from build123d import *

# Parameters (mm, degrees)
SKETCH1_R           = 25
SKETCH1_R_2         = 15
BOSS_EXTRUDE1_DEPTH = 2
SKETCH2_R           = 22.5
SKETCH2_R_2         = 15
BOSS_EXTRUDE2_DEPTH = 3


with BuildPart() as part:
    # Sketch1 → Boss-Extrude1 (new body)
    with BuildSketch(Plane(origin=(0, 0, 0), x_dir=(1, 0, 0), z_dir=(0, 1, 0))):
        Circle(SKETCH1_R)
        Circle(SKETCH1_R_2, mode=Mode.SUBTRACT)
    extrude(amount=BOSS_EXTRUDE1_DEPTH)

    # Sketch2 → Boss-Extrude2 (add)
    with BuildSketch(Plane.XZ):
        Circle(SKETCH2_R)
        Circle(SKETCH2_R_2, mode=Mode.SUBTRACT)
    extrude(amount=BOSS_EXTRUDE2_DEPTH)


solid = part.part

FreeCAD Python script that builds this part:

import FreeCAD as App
import Part
import Sketcher

doc = App.newDocument("Part")
body = doc.addObject("PartDesign::Body", "Body")

sketch1 = doc.addObject("Sketcher::SketchObject", "Sketch")
body.addObject(sketch1)
sketch1.AttachmentSupport = (doc.XZ_Plane, [""])
sketch1.MapMode = "FlatFace"
sketch1.addGeometry([
    Part.Circle(App.Vector(0, 0, 0), App.Vector(0, 0, 1), 25),
    Part.Circle(App.Vector(0, 0, 0), App.Vector(0, 0, 1), 15),
], False)
sketch1.addConstraint([
    Sketcher.Constraint("Coincident", 0, 3, -1, 1),
    Sketcher.Constraint("Coincident", 1, 3, -1, 1),
    Sketcher.Constraint("Diameter", 0, 50.0),
    Sketcher.Constraint("Diameter", 1, 30.0),
])
pad1 = doc.addObject("PartDesign::Pad", "Pad")
body.addObject(pad1)
pad1.Profile = sketch1
pad1.Length = 2
pad1.Reversed = True

sketch2 = doc.addObject("Sketcher::SketchObject", "Sketch001")
body.addObject(sketch2)
sketch2.AttachmentSupport = (doc.XZ_Plane, [""])
sketch2.MapMode = "FlatFace"
sketch2.addGeometry([
    Part.Circle(App.Vector(0, 0, 0), App.Vector(0, 0, 1), 22.5),
    Part.Circle(App.Vector(0, 0, 0), App.Vector(0, 0, 1), 15),
], False)
sketch2.addConstraint([
    Sketcher.Constraint("Coincident", 0, 3, -1, 1),
    Sketcher.Constraint("Coincident", 1, 3, -1, 1),
    Sketcher.Constraint("Diameter", 0, 45.0),
    Sketcher.Constraint("Diameter", 1, 30.0),
])
pad2 = doc.addObject("PartDesign::Pad", "Pad001")
body.addObject(pad2)
pad2.Profile = sketch2
pad2.Length = 3

doc.recompute()
